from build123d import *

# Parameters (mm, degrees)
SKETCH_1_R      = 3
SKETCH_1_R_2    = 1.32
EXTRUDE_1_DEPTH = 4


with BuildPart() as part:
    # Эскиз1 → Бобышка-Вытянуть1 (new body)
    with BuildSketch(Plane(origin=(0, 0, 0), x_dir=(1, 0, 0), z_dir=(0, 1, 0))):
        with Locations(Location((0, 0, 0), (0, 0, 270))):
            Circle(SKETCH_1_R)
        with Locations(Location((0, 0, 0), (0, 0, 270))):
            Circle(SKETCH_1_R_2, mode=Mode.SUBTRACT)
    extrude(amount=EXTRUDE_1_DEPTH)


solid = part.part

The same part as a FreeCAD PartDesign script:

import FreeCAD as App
import Part
import Sketcher

V = App.Vector

doc = App.newDocument("Part")
params = doc.addObject("Spreadsheet::Sheet", "Params")
for row, (alias, value) in enumerate([
    ("sketch1_diameter", "6 mm"),
    ("sketch1_diameter2", "2.64 mm"),
    ("pad1_length", "4 mm"),
], start=1):
    params.set(f"A{row}", alias)
    params.set(f"B{row}", "=" + value)
    params.setAlias(f"B{row}", alias)

body = doc.addObject("PartDesign::Body", "Body")

sketch1 = body.newObject("Sketcher::SketchObject", "Sketch")
sketch1.AttachmentSupport = (doc.getObject("XZ_Plane"), [""])
sketch1.MapMode = "FlatFace"
sketch1.addGeometry(Part.Circle(V(0, 0, 0), V(0, 0, 1), 3), False)
sketch1.addGeometry(Part.Circle(V(0, 0, 0), V(0, 0, 1), 1.3), False)
sketch1.addConstraint(Sketcher.Constraint("Coincident", 0, 3, -1, 1))
sketch1.addConstraint(Sketcher.Constraint("Coincident", 1, 3, -1, 1))
sketch1.addConstraint(Sketcher.Constraint("Diameter", 0, 6.0))
sketch1.addConstraint(Sketcher.Constraint("Diameter", 1, 2.64))
sketch1.setExpression("Constraints[2]", "Params.sketch1_diameter")
sketch1.setExpression("Constraints[3]", "Params.sketch1_diameter2")
pad1 = body.newObject("PartDesign::Pad", "Pad")
pad1.Profile = sketch1
pad1.setExpression("Length", "Params.pad1_length")
pad1.Reversed = True

doc.recompute()
